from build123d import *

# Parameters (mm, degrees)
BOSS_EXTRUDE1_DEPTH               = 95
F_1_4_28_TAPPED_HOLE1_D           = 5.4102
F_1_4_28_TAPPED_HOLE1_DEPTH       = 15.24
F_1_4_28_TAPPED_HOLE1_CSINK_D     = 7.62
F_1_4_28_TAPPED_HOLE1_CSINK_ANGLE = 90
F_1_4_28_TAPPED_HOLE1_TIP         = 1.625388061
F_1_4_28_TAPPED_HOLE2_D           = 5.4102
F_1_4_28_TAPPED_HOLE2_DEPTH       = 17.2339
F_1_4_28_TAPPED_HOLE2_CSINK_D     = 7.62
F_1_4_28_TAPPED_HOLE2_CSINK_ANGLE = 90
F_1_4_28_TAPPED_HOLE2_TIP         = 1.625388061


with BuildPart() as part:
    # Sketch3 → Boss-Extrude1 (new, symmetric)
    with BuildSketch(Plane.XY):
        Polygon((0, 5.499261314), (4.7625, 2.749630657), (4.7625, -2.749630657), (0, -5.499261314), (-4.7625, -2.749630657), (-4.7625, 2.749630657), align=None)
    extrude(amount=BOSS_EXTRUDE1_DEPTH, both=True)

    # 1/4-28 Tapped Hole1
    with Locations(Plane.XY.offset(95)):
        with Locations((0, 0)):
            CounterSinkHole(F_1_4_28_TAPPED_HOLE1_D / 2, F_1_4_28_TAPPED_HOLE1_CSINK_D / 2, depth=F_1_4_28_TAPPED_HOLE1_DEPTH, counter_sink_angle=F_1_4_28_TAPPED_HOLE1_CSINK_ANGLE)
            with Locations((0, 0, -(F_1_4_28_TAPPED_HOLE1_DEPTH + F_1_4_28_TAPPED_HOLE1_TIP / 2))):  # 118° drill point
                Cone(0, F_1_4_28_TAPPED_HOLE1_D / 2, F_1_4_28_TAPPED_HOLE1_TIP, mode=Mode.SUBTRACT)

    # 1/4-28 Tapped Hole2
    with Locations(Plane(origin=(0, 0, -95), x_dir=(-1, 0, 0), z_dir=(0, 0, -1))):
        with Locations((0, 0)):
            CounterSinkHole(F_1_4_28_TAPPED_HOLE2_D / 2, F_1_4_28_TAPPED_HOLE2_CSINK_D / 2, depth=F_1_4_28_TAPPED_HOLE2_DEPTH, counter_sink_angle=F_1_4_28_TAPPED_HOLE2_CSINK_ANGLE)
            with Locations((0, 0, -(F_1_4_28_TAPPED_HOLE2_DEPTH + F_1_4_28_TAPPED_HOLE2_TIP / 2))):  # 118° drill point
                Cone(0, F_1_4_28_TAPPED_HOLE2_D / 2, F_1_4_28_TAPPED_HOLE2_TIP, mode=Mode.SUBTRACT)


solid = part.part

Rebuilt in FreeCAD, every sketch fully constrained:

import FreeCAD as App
import Part
import Sketcher
from FreeCAD import Vector
Q = App.Units.Quantity


def add_polygon(sketch, points):
    """Adds a closed chain of lines whose ends are joined by coincident constraints."""
    first, n = sketch.GeometryCount, len(points)
    for a, b in zip(points, points[1:] + points[:1]):
        sketch.addGeometry(Part.LineSegment(App.Vector(*a, 0), App.Vector(*b, 0)), False)
    for i in range(n):
        sketch.addConstraint(Sketcher.Constraint("Coincident", first + i, 2, first + (i + 1) % n, 1))

doc = App.newDocument("Part")
body = doc.addObject("PartDesign::Body", "Body")

sketch1 = body.newObject("Sketcher::SketchObject", "Sketch")
sketch1.AttachmentSupport = (doc.getObject("XY_Plane"), [""])
sketch1.MapMode = "FlatFace"
add_polygon(sketch1, [(4.7625, 2.749631), (0, 5.499261), (-4.7625, 2.749631), (-4.7625, -2.749631), (0, -5.499261), (4.7625, -2.749631)])
sketch1.addConstraint([
    Sketcher.Constraint("Vertical", 2),
    Sketcher.Constraint("Vertical", 5),
    Sketcher.Constraint("Symmetric", 0, 2, 3, 2, -1, 1),
    Sketcher.Constraint("Symmetric", 1, 2, 4, 2, -1, 1),
    Sketcher.Constraint("PointOnObject", 0, 2, -2),
    Sketcher.Constraint("Parallel", 0, 3),
    Sketcher.Constraint("Horizontal", 2, 2, 4, 2),
    Sketcher.Constraint("Angle", 0, Q("150 deg")),
    Sketcher.Constraint("DistanceX", 1, 2, -1, 1, Q("0.1875 in")),
    Sketcher.Constraint("DistanceY", 2, 2, 2, 1, Q("5.499261 mm")),
])
pad1 = body.newObject("PartDesign::Pad", "Pad")
pad1.Profile = sketch1
pad1.Length = 190
pad1.Midplane = True

sketch2 = body.newObject("Sketcher::SketchObject", "Sketch001")
sketch2.AttachmentSupport = (doc.getObject("XY_Plane"), [""])
sketch2.MapMode = "FlatFace"
sketch2.AttachmentOffset = App.Placement(Vector(0, 0, 95), App.Rotation())
sketch2.addGeometry(Part.Circle(Vector(0, 0, 0), Vector(0, 0, 1), 2.7051), False)
sketch2.addConstraint([
    Sketcher.Constraint("Coincident", 0, 3, -1, 1),
    Sketcher.Constraint("Diameter", 0, Q("0.213 in")),
])
doc.recompute()
hole = body.newObject("PartDesign::Hole", "Hole")
hole.Profile = sketch2
hole.ThreadType = "None"
hole.Diameter = Q("0.213 in")
hole.DepthType = "Dimension"
hole.Depth = Q("0.6 in")
hole.DrillPoint = "Angled"
hole.DrillPointAngle = 118
hole.HoleCutType = "Countersink"
hole.HoleCutDiameter = Q("0.3 in")
hole.HoleCutCountersinkAngle = 90

sketch3 = body.newObject("Sketcher::SketchObject", "Sketch002")
sketch3.AttachmentSupport = (doc.getObject("XY_Plane"), [""])
sketch3.MapMode = "FlatFace"
sketch3.AttachmentOffset = App.Placement(Vector(0, 0, -95), App.Rotation())
sketch3.addGeometry(Part.Circle(Vector(0, 0, 0), Vector(0, 0, 1), 2.7051), False)
sketch3.addConstraint([
    Sketcher.Constraint("Coincident", 0, 3, -1, 1),
    Sketcher.Constraint("Diameter", 0, Q("0.213 in")),
])
doc.recompute()
hole2 = body.newObject("PartDesign::Hole", "Hole001")
hole2.Profile = sketch3
hole2.ThreadType = "None"
hole2.Diameter = Q("0.213 in")
hole2.DepthType = "Dimension"
hole2.Depth = Q("0.6785 in")
hole2.DrillPoint = "Angled"
hole2.DrillPointAngle = 118
hole2.HoleCutType = "Countersink"
hole2.HoleCutDiameter = Q("0.3 in")
hole2.HoleCutCountersinkAngle = 90
hole2.Reversed = True

doc.recompute()
